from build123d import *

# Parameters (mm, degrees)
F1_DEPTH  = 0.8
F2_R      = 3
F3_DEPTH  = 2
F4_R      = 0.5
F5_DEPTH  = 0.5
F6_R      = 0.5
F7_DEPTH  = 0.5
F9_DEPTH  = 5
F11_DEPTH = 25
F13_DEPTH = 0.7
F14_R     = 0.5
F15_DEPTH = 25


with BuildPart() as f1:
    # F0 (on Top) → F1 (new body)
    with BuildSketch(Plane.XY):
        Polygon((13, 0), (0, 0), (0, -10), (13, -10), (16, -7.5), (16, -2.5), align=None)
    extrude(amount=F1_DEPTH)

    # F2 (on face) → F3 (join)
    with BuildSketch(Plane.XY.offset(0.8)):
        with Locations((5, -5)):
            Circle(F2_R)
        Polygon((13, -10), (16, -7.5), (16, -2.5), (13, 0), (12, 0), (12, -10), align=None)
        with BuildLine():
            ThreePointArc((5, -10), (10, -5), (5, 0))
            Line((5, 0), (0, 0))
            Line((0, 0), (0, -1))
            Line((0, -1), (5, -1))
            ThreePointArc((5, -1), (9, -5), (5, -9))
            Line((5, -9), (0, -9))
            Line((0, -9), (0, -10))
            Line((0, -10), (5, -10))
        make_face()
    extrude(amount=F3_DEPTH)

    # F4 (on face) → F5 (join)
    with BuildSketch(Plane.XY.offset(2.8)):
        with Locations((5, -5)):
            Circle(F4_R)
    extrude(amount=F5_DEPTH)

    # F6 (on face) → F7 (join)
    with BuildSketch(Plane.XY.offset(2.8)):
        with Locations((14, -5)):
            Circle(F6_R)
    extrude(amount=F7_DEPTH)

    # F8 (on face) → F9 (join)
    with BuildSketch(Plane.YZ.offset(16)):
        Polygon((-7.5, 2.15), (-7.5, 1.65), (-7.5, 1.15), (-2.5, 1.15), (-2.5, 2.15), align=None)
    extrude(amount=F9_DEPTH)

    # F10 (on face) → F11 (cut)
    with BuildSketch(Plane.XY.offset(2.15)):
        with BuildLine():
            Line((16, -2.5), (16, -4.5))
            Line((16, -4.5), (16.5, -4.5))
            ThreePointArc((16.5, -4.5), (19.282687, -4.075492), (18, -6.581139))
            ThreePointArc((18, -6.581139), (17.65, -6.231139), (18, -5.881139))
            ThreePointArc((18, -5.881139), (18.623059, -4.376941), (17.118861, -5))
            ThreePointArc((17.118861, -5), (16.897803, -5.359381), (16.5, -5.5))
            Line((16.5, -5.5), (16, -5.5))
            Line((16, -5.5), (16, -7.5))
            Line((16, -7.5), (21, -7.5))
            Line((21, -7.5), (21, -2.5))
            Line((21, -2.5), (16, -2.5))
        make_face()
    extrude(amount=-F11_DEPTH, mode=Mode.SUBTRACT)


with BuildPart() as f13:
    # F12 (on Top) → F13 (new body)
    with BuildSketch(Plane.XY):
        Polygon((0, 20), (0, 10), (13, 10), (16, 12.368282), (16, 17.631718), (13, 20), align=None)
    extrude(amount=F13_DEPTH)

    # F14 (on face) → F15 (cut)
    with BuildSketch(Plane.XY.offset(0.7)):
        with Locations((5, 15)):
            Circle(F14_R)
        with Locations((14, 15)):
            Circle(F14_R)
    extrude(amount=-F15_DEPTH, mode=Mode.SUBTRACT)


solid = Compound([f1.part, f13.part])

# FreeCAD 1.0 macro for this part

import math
import FreeCAD as App
import Part
import Sketcher
from FreeCAD import Vector
Q = App.Units.Quantity

doc = App.newDocument("Part")
body = doc.addObject("PartDesign::Body", "Body")

# Sketch on XY plane
sketch1 = body.newObject("Sketcher::SketchObject", "Sketch")
sketch1.AttachmentSupport = (doc.getObject("XY_Plane"), [""])
sketch1.MapMode = "FlatFace"
sketch1.addGeometry(Part.LineSegment(Vector(13, 0, 0), Vector(0, 0, 0)), False)
sketch1.addGeometry(Part.LineSegment(Vector(0, 0, 0), Vector(0, -10, 0)), False)
sketch1.addGeometry(Part.LineSegment(Vector(0, -10, 0), Vector(13, -10, 0)), False)
sketch1.addGeometry(Part.LineSegment(Vector(13, -10, 0), Vector(16, -7.5, 0)), False)
sketch1.addGeometry(Part.LineSegment(Vector(16, -7.5, 0), Vector(16, -2.5, 0)), False)
sketch1.addGeometry(Part.LineSegment(Vector(16, -2.5, 0), Vector(13, 0, 0)), False)
sketch1.addConstraint(Sketcher.Constraint("Coincident", 0, 2, 1, 1))
sketch1.addConstraint(Sketcher.Constraint("Coincident", 1, 2, 2, 1))
sketch1.addConstraint(Sketcher.Constraint("Coincident", 2, 2, 3, 1))
sketch1.addConstraint(Sketcher.Constraint("Coincident", 3, 2, 4, 1))
sketch1.addConstraint(Sketcher.Constraint("Coincident", 4, 2, 5, 1))
sketch1.addConstraint(Sketcher.Constraint("Coincident", 5, 2, 0, 1))
sketch1.addConstraint(Sketcher.Constraint("Horizontal", 0))
sketch1.addConstraint(Sketcher.Constraint("Vertical", 1))
sketch1.addConstraint(Sketcher.Constraint("Horizontal", 2))
sketch1.addConstraint(Sketcher.Constraint("Vertical", 4))
sketch1.addConstraint(Sketcher.Constraint("Coincident", 0, 2, -1, 1))
sketch1.addConstraint(Sketcher.Constraint("Vertical", 2, 2, 5, 2))
sketch1.addConstraint(Sketcher.Constraint("Equal", 3, 5))
sketch1.addConstraint(Sketcher.Constraint("DistanceX", 0, 2, 0, 1, Q("13 mm")))
sketch1.addConstraint(Sketcher.Constraint("DistanceY", 1, 2, 1, 1, Q("10 mm")))
sketch1.addConstraint(Sketcher.Constraint("DistanceY", 4, 1, 4, 2, Q("5 mm")))
sketch1.addConstraint(Sketcher.Constraint("DistanceX", -1, 1, 3, 2, Q("16 mm")))
pad1 = body.newObject("PartDesign::Pad", "Pad")
pad1.Profile = sketch1
pad1.Length = 0.8

# Sketch on XY plane
sketch2 = body.newObject("Sketcher::SketchObject", "Sketch001")
sketch2.AttachmentSupport = (doc.getObject("XY_Plane"), [""])
sketch2.MapMode = "FlatFace"
sketch2.AttachmentOffset = App.Placement(Vector(0, 0, 0.8), App.Rotation())
sketch2.addGeometry(Part.Circle(Vector(5, -5, 0), Vector(0, 0, 1), 3), False)
sketch2.addGeometry(Part.LineSegment(Vector(13, -10, 0), Vector(16, -7.5, 0)), False)
sketch2.addGeometry(Part.LineSegment(Vector(16, -7.5, 0), Vector(16, -2.5, 0)), False)
sketch2.addGeometry(Part.LineSegment(Vector(16, -2.5, 0), Vector(13, 0, 0)), False)
sketch2.addGeometry(Part.LineSegment(Vector(13, 0, 0), Vector(12, 0, 0)), False)
sketch2.addGeometry(Part.LineSegment(Vector(12, 0, 0), Vector(12, -10, 0)), False)
sketch2.addGeometry(Part.LineSegment(Vector(12, -10, 0), Vector(13, -10, 0)), False)
sketch2.addGeometry(Part.ArcOfCircle(Part.Circle(Vector(5, -5, 0), Vector(0, 0, 1), 5), math.radians(-90), math.radians(90)), False)
sketch2.addGeometry(Part.LineSegment(Vector(5, 0, 0), Vector(0, 0, 0)), False)
sketch2.addGeometry(Part.LineSegment(Vector(0, 0, 0), Vector(0, -1, 0)), False)
sketch2.addGeometry(Part.LineSegment(Vector(0, -1, 0), Vector(5, -1, 0)), False)
sketch2.addGeometry(Part.ArcOfCircle(Part.Circle(Vector(5, -5, 0), Vector(0, 0, 1), 4), math.radians(-90), math.radians(90)), False)
sketch2.addGeometry(Part.LineSegment(Vector(5, -9, 0), Vector(0, -9, 0)), False)
sketch2.addGeometry(Part.LineSegment(Vector(0, -9, 0), Vector(0, -10, 0)), False)
sketch2.addGeometry(Part.LineSegment(Vector(0, -10, 0), Vector(5, -10, 0)), False)
sketch2.addConstraint(Sketcher.Constraint("Coincident", 1, 2, 2, 1))
sketch2.addConstraint(Sketcher.Constraint("Coincident", 2, 2, 3, 1))
sketch2.addConstraint(Sketcher.Constraint("Coincident", 3, 2, 4, 1))
sketch2.addConstraint(Sketcher.Constraint("Coincident", 4, 2, 5, 1))
sketch2.addConstraint(Sketcher.Constraint("Coincident", 5, 2, 6, 1))
sketch2.addConstraint(Sketcher.Constraint("Coincident", 6, 2, 1, 1))
sketch2.addConstraint(Sketcher.Constraint("Tangent", 7, 2, 8, 1))
sketch2.addConstraint(Sketcher.Constraint("Coincident", 8, 2, 9, 1))
sketch2.addConstraint(Sketcher.Constraint("Coincident", 9, 2, 10, 1))
sketch2.addConstraint(Sketcher.Constraint("Tangent", 10, 2, 11, 2))
sketch2.addConstraint(Sketcher.Constraint("Tangent", 11, 1, 12, 1))
sketch2.addConstraint(Sketcher.Constraint("Coincident", 12, 2, 13, 1))
sketch2.addConstraint(Sketcher.Constraint("Coincident", 13, 2, 14, 1))
sketch2.addConstraint(Sketcher.Constraint("Tangent", 14, 2, 7, 1))
sketch2.addConstraint(Sketcher.Constraint("Vertical", 2))
sketch2.addConstraint(Sketcher.Constraint("Horizontal", 4))
sketch2.addConstraint(Sketcher.Constraint("Vertical", 5))
sketch2.addConstraint(Sketcher.Constraint("Horizontal", 6))
sketch2.addConstraint(Sketcher.Constraint("Horizontal", 8))
sketch2.addConstraint(Sketcher.Constraint("Vertical", 9))
sketch2.addConstraint(Sketcher.Constraint("Horizontal", 10))
sketch2.addConstraint(Sketcher.Constraint("Horizontal", 12))
sketch2.addConstraint(Sketcher.Constraint("Vertical", 13))
sketch2.addConstraint(Sketcher.Constraint("Horizontal", 14))
sketch2.addConstraint(Sketcher.Constraint("Coincident", 8, 2, -1, 1))
sketch2.addConstraint(Sketcher.Constraint("Coincident", 7, 3, 0, 3))
sketch2.addConstraint(Sketcher.Constraint("Coincident", 11, 3, 0, 3))
sketch2.addConstraint(Sketcher.Constraint("PointOnObject", 3, 2, -1))
sketch2.addConstraint(Sketcher.Constraint("PointOnObject", 12, 2, -2))
sketch2.addConstraint(Sketcher.Constraint("Horizontal", 6, 2, 13, 2))
sketch2.addConstraint(Sketcher.Constraint("Vertical", 3, 2, 6, 2))
sketch2.addConstraint(Sketcher.Constraint("Equal", 14, 2))
sketch2.addConstraint(Sketcher.Constraint("Equal", 6, 9))
sketch2.addConstraint(Sketcher.Constraint("Equal", 1, 3))
sketch2.addConstraint(Sketcher.Constraint("Diameter", 0, Q("6 mm")))
sketch2.addConstraint(Sketcher.Constraint("Radius", 7, Q("5 mm")))
sketch2.addConstraint(Sketcher.Constraint("Radius", 11, Q("4 mm")))
sketch2.addConstraint(Sketcher.Constraint("DistanceX", 8, 2, 8, 1, Q("5 mm")))
sketch2.addConstraint(Sketcher.Constraint("DistanceX", -1, 1, 1, 2, Q("16 mm")))
sketch2.addConstraint(Sketcher.Constraint("DistanceX", -1, 1, 3, 2, Q("13 mm")))
pad2 = body.newObject("PartDesign::Pad", "Pad001")
pad2.Profile = sketch2
pad2.Length = 2

# Sketch on XY plane
sketch3 = body.newObject("Sketcher::SketchObject", "Sketch002")
sketch3.AttachmentSupport = (doc.getObject("XY_Plane"), [""])
sketch3.MapMode = "FlatFace"
sketch3.AttachmentOffset = App.Placement(Vector(0, 0, 2.8), App.Rotation())
sketch3.addGeometry(Part.Circle(Vector(5, -5, 0), Vector(0, 0, 1), 0.5), False)
sketch3.addConstraint(Sketcher.Constraint("Diameter", 0, Q("1 mm")))
sketch3.addConstraint(Sketcher.Constraint("DistanceX", -1, 1, 0, 3, Q("5 mm")))
sketch3.addConstraint(Sketcher.Constraint("DistanceY", 0, 3, -1, 1, Q("5 mm")))
pad3 = body.newObject("PartDesign::Pad", "Pad002")
pad3.Profile = sketch3
pad3.Length = 0.5

# Sketch on XY plane
sketch4 = body.newObject("Sketcher::SketchObject", "Sketch003")
sketch4.AttachmentSupport = (doc.getObject("XY_Plane"), [""])
sketch4.MapMode = "FlatFace"
sketch4.AttachmentOffset = App.Placement(Vector(0, 0, 2.8), App.Rotation())
sketch4.addGeometry(Part.Circle(Vector(14, -5, 0), Vector(0, 0, 1), 0.5), False)
sketch4.addConstraint(Sketcher.Constraint("Diameter", 0, Q("1 mm")))
sketch4.addConstraint(Sketcher.Constraint("DistanceX", -1, 1, 0, 3, Q("14 mm")))
sketch4.addConstraint(Sketcher.Constraint("DistanceY", 0, 3, -1, 1, Q("5 mm")))
pad4 = body.newObject("PartDesign::Pad", "Pad003")
pad4.Profile = sketch4
pad4.Length = 0.5

# Sketch on YZ plane
sketch5 = body.newObject("Sketcher::SketchObject", "Sketch004")
sketch5.AttachmentSupport = (doc.getObject("YZ_Plane"), [""])
sketch5.MapMode = "FlatFace"
sketch5.AttachmentOffset = App.Placement(Vector(0, 0, 16), App.Rotation())
sketch5.addGeometry(Part.LineSegment(Vector(-7.5, 2.1, 0), Vector(-7.5, 1.1, 0)), False)
sketch5.addGeometry(Part.LineSegment(Vector(-7.5, 1.1, 0), Vector(-2.5, 1.1, 0)), False)
sketch5.addGeometry(Part.LineSegment(Vector(-2.5, 1.1, 0), Vector(-2.5, 2.1, 0)), False)
sketch5.addGeometry(Part.LineSegment(Vector(-2.5, 2.1, 0), Vector(-7.5, 2.1, 0)), False)
sketch5.addConstraint(Sketcher.Constraint("Coincident", 0, 2, 1, 1))
sketch5.addConstraint(Sketcher.Constraint("Coincident", 1, 2, 2, 1))
sketch5.addConstraint(Sketcher.Constraint("Coincident", 2, 2, 3, 1))
sketch5.addConstraint(Sketcher.Constraint("Coincident", 3, 2, 0, 1))
sketch5.addConstraint(Sketcher.Constraint("Vertical", 0))
sketch5.addConstraint(Sketcher.Constraint("Horizontal", 1))
sketch5.addConstraint(Sketcher.Constraint("Vertical", 2))
sketch5.addConstraint(Sketcher.Constraint("Horizontal", 3))
sketch5.addConstraint(Sketcher.Constraint("DistanceX", 1, 1, 1, 2, Q("5 mm")))
sketch5.addConstraint(Sketcher.Constraint("DistanceY", 0, 2, 0, 1, Q("1 mm")))
sketch5.addConstraint(Sketcher.Constraint("DistanceX", 0, 2, -1, 1, Q("7.5 mm")))
sketch5.addConstraint(Sketcher.Constraint("DistanceY", -1, 1, 0, 2, Q("1.15 mm")))
pad5 = body.newObject("PartDesign::Pad", "Pad004")
pad5.Profile = sketch5
pad5.Length = 5

# Sketch on XY plane
sketch6 = body.newObject("Sketcher::SketchObject", "Sketch005")
sketch6.AttachmentSupport = (doc.getObject("XY_Plane"), [""])
sketch6.MapMode = "FlatFace"
sketch6.AttachmentOffset = App.Placement(Vector(0, 0, 2.15), App.Rotation())
sketch6.addGeometry(Part.LineSegment(Vector(16, -2.5, 0), Vector(16, -4.5, 0)), False)
sketch6.addGeometry(Part.LineSegment(Vector(16, -4.5, 0), Vector(16.5, -4.5, 0)), False)
sketch6.addGeometry(Part.ArcOfCircle(Part.Circle(Vector(18, -5, 0), Vector(0, 0, 1), 1.58), math.radians(-90), math.radians(162)), False)
sketch6.addGeometry(Part.ArcOfCircle(Part.Circle(Vector(18, -6.23, 0), Vector(0, 0, 1), 0.35), math.radians(90), math.radians(270)), False)
sketch6.addGeometry(Part.ArcOfCircle(Part.Circle(Vector(18, -5, 0), Vector(0, 0, 1), 0.88), math.radians(-90), math.radians(180)), False)
sketch6.addGeometry(Part.ArcOfCircle(Part.Circle(Vector(16.5, -4.87, 0), Vector(0, 0, 1), 0.63), math.radians(-90), math.radians(-12)), False)
sketch6.addGeometry(Part.LineSegment(Vector(16.5, -5.5, 0), Vector(16, -5.5, 0)), False)
sketch6.addGeometry(Part.LineSegment(Vector(16, -5.5, 0), Vector(16, -7.5, 0)), False)
sketch6.addGeometry(Part.LineSegment(Vector(16, -7.5, 0), Vector(21, -7.5, 0)), False)
sketch6.addGeometry(Part.LineSegment(Vector(21, -7.5, 0), Vector(21, -2.5, 0)), False)
sketch6.addGeometry(Part.LineSegment(Vector(21, -2.5, 0), Vector(16, -2.5, 0)), False)
sketch6.addConstraint(Sketcher.Constraint("Coincident", 0, 2, 1, 1))
sketch6.addConstraint(Sketcher.Constraint("Coincident", 1, 2, 2, 2))
sketch6.addConstraint(Sketcher.Constraint("Tangent", 2, 1, 3, 2))
sketch6.addConstraint(Sketcher.Constraint("Tangent", 3, 1, 4, 1))
sketch6.addConstraint(Sketcher.Constraint("Coincident", 4, 2, 5, 2))
sketch6.addConstraint(Sketcher.Constraint("Tangent", 5, 1, 6, 1))
sketch6.addConstraint(Sketcher.Constraint("Coincident", 6, 2, 7, 1))
sketch6.addConstraint(Sketcher.Constraint("Coincident", 7, 2, 8, 1))
sketch6.addConstraint(Sketcher.Constraint("Coincident", 8, 2, 9, 1))
sketch6.addConstraint(Sketcher.Constraint("Coincident", 9, 2, 10, 1))
sketch6.addConstraint(Sketcher.Constraint("Coincident", 10, 2, 0, 1))
sketch6.addConstraint(Sketcher.Constraint("Vertical", 0))
sketch6.addConstraint(Sketcher.Constraint("Horizontal", 1))
sketch6.addConstraint(Sketcher.Constraint("Horizontal", 6))
sketch6.addConstraint(Sketcher.Constraint("Vertical", 7))
sketch6.addConstraint(Sketcher.Constraint("Horizontal", 8))
sketch6.addConstraint(Sketcher.Constraint("Vertical", 9))
sketch6.addConstraint(Sketcher.Constraint("Horizontal", 10))
sketch6.addConstraint(Sketcher.Constraint("Coincident", 4, 3, 2, 3))
sketch6.addConstraint(Sketcher.Constraint("Horizontal", 2, 3, 4, 2))
sketch6.addConstraint(Sketcher.Constraint("Vertical", 2, 3, 3, 3))
sketch6.addConstraint(Sketcher.Constraint("Vertical", 5, 3, 1, 2))
sketch6.addConstraint(Sketcher.Constraint("Vertical", 0, 2, 6, 2))
sketch6.addConstraint(Sketcher.Constraint("Equal", 0, 7))
sketch6.addConstraint(Sketcher.Constraint("Equal", 10, 9))
sketch6.addConstraint(Sketcher.Constraint("DistanceX", 8, 1, 8, 2, Q("5 mm")))
sketch6.addConstraint(Sketcher.Constraint("DistanceY", 0, 2, 0, 1, Q("2 mm")))
sketch6.addConstraint(Sketcher.Constraint("Radius", 3, Q("0.35 mm")))
sketch6.addConstraint(Sketcher.Constraint("DistanceX", 1, 1, 1, 2, Q("0.5 mm")))
sketch6.addConstraint(Sketcher.Constraint("DistanceX", -1, 1, 2, 3, Q("18 mm")))
sketch6.addConstraint(Sketcher.Constraint("DistanceY", 2, 3, -1, 1, Q("5 mm")))
sketch6.addConstraint(Sketcher.Constraint("DistanceX", -1, 1, 0, 2, Q("16 mm")))
sketch6.addConstraint(Sketcher.Constraint("DistanceY", 0, 2, -1, 1, Q("4.5 mm")))
pocket1 = body.newObject("PartDesign::Pocket", "Pocket")
pocket1.Profile = sketch6
pocket1.Length = 25
body2 = doc.addObject("PartDesign::Body", "Body001")

# Sketch on XY plane
sketch7 = body2.newObject("Sketcher::SketchObject", "Sketch006")
sketch7.AttachmentSupport = (doc.getObject("XY_Plane001"), [""])
sketch7.MapMode = "FlatFace"
sketch7.addGeometry(Part.LineSegment(Vector(0, 20, 0), Vector(0, 10, 0)), False)
sketch7.addGeometry(Part.LineSegment(Vector(0, 10, 0), Vector(13, 10, 0)), False)
sketch7.addGeometry(Part.LineSegment(Vector(13, 10, 0), Vector(16, 12.4, 0)), False)
sketch7.addGeometry(Part.LineSegment(Vector(16, 12.4, 0), Vector(16, 17.6, 0)), False)
sketch7.addGeometry(Part.LineSegment(Vector(16, 17.6, 0), Vector(13, 20, 0)), False)
sketch7.addGeometry(Part.LineSegment(Vector(13, 20, 0), Vector(0, 20, 0)), False)
sketch7.addConstraint(Sketcher.Constraint("Coincident", 0, 2, 1, 1))
sketch7.addConstraint(Sketcher.Constraint("Coincident", 1, 2, 2, 1))
sketch7.addConstraint(Sketcher.Constraint("Coincident", 2, 2, 3, 1))
sketch7.addConstraint(Sketcher.Constraint("Coincident", 3, 2, 4, 1))
sketch7.addConstraint(Sketcher.Constraint("Coincident", 4, 2, 5, 1))
sketch7.addConstraint(Sketcher.Constraint("Coincident", 5, 2, 0, 1))
sketch7.addConstraint(Sketcher.Constraint("Vertical", 0))
sketch7.addConstraint(Sketcher.Constraint("Horizontal", 1))
sketch7.addConstraint(Sketcher.Constraint("Vertical", 3))
sketch7.addConstraint(Sketcher.Constraint("Horizontal", 5))
sketch7.addConstraint(Sketcher.Constraint("PointOnObject", 0, 2, -2))
sketch7.addConstraint(Sketcher.Constraint("Vertical", 1, 2, 4, 2))
sketch7.addConstraint(Sketcher.Constraint("Equal", 2, 4))
sketch7.addConstraint(Sketcher.Constraint("DistanceX", 1, 1, 1, 2, Q("13 mm")))
sketch7.addConstraint(Sketcher.Constraint("DistanceY", 0, 2, 0, 1, Q("10 mm")))
sketch7.addConstraint(Sketcher.Constraint("DistanceY", -1, 1, 0, 2, Q("10 mm")))
sketch7.addConstraint(Sketcher.Constraint("DistanceX", -1, 1, 2, 2, Q("16 mm")))
sketch7.addConstraint(Sketcher.Constraint("Distance", 2, Q("3.822141 mm")))
pad6 = body2.newObject("PartDesign::Pad", "Pad005")
pad6.Profile = sketch7
pad6.Length = 0.7

# Sketch on XY plane
sketch8 = body2.newObject("Sketcher::SketchObject", "Sketch007")
sketch8.AttachmentSupport = (doc.getObject("XY_Plane001"), [""])
sketch8.MapMode = "FlatFace"
sketch8.AttachmentOffset = App.Placement(Vector(0, 0, 0.7), App.Rotation())
sketch8.addGeometry(Part.Circle(Vector(5, 15, 0), Vector(0, 0, 1), 0.5), False)
sketch8.addGeometry(Part.Circle(Vector(14, 15, 0), Vector(0, 0, 1), 0.5), False)
sketch8.addConstraint(Sketcher.Constraint("Equal", 0, 1))
sketch8.addConstraint(Sketcher.Constraint("Horizontal", 0, 3, 1, 3))
sketch8.addConstraint(Sketcher.Constraint("Diameter", 0, Q("1 mm")))
sketch8.addConstraint(Sketcher.Constraint("DistanceX", -1, 1, 0, 3, Q("5 mm")))
sketch8.addConstraint(Sketcher.Constraint("DistanceY", -1, 1, 0, 3, Q("15 mm")))
sketch8.addConstraint(Sketcher.Constraint("DistanceX", -1, 1, 1, 3, Q("14 mm")))
pocket2 = body2.newObject("PartDesign::Pocket", "Pocket001")
pocket2.Profile = sketch8
pocket2.Length = 25

doc.recompute()
